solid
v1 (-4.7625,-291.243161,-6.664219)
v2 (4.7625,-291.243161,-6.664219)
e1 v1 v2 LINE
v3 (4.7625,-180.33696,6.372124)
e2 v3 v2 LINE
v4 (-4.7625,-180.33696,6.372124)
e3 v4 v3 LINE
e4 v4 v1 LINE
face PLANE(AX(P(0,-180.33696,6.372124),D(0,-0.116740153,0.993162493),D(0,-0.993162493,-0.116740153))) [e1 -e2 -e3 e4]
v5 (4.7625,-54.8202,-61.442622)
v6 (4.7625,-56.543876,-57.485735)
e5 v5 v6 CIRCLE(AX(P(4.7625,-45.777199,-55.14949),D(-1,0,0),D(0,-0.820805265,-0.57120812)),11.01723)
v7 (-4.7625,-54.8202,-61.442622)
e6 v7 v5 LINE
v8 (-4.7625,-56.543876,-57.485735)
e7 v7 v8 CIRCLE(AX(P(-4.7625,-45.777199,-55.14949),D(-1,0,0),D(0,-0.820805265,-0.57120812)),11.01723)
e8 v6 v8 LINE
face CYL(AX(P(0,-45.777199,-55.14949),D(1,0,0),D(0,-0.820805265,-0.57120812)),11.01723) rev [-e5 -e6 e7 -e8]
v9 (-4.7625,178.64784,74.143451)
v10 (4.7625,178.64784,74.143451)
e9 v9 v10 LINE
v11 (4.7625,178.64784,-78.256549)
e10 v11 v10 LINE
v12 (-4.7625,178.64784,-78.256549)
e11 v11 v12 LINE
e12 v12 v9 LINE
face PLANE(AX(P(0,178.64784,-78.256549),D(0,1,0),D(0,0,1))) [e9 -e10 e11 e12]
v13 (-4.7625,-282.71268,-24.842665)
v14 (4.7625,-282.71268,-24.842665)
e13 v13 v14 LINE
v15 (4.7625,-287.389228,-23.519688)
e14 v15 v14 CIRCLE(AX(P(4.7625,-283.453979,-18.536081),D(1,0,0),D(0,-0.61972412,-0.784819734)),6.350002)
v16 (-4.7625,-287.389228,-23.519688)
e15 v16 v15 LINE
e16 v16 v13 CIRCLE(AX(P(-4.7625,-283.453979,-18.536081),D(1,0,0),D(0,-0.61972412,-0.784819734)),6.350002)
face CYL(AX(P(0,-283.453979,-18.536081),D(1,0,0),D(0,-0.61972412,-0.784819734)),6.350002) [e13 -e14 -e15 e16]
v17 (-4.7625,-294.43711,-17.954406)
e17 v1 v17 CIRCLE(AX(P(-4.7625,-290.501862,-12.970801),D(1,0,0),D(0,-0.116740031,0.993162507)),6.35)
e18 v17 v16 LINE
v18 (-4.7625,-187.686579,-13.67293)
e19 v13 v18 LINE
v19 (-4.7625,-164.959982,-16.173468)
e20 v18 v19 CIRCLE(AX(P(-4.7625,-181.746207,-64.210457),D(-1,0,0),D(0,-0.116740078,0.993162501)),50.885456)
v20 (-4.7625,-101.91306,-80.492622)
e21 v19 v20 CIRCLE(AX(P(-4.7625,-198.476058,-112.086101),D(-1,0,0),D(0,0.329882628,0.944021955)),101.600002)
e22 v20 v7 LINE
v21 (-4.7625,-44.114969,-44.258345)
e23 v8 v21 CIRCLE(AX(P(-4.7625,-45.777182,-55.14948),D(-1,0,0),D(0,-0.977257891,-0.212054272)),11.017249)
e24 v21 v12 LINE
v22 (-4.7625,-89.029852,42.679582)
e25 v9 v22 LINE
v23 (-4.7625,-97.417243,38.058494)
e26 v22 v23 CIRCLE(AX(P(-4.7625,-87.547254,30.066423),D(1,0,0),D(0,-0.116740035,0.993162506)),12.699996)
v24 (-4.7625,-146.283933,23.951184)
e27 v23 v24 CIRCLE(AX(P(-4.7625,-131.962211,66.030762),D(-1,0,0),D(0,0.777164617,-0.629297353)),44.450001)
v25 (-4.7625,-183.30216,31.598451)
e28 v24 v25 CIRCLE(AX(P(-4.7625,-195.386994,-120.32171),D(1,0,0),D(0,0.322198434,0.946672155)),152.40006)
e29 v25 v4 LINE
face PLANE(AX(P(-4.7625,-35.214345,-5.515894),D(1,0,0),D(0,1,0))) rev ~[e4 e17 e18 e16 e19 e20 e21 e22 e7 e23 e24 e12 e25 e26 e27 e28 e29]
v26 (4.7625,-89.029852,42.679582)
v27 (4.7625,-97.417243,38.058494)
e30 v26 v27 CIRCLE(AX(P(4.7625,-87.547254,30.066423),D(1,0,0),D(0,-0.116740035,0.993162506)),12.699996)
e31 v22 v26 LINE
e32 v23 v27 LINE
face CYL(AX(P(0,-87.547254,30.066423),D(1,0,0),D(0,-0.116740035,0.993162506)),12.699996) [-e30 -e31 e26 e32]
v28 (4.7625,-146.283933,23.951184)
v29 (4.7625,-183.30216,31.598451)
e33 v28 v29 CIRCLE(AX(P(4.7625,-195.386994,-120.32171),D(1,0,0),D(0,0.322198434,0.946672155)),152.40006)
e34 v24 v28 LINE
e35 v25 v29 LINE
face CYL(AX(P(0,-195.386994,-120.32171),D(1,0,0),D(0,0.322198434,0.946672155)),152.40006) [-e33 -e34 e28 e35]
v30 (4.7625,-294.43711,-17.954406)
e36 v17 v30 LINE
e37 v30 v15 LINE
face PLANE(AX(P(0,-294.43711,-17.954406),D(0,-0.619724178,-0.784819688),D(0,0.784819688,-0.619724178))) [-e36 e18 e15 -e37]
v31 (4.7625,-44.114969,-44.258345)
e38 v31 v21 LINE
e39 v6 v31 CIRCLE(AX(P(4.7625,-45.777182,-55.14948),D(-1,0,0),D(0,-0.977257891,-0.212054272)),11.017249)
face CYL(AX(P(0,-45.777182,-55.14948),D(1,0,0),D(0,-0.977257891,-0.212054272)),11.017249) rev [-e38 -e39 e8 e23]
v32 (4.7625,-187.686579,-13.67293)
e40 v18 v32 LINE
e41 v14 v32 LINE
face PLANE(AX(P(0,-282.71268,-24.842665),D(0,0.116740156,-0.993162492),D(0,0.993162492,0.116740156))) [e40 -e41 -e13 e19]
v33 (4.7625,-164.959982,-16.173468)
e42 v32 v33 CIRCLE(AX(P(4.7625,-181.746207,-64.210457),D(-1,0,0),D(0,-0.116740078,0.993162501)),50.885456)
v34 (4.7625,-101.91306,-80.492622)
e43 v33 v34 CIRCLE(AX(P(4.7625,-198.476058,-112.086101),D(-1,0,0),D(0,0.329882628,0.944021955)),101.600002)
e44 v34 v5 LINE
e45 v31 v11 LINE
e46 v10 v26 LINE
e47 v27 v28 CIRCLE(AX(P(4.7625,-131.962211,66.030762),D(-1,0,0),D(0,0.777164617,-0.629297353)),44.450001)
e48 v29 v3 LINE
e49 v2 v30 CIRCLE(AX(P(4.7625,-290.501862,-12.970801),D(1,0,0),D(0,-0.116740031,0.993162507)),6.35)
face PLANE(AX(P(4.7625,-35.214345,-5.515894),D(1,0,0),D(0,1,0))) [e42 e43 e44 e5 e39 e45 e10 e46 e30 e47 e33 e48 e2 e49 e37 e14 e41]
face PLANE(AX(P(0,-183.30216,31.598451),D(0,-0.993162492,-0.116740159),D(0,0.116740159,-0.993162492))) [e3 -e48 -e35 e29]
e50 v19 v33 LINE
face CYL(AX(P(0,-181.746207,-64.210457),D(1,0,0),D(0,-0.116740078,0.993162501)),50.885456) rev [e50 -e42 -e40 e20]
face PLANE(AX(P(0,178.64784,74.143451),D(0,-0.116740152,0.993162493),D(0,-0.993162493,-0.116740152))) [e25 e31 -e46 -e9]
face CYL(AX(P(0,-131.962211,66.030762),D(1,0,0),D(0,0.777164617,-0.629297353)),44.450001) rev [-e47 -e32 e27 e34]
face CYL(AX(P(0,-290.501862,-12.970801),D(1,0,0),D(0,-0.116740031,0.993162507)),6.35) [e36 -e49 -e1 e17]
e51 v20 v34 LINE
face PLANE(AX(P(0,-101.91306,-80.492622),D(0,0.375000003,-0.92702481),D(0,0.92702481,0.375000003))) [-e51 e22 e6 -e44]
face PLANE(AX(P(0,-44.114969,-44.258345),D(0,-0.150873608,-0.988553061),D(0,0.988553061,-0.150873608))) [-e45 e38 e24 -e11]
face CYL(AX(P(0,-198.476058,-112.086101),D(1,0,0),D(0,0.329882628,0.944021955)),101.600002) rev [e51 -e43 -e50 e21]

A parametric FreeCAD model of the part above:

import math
import FreeCAD as App
import Part
import Sketcher
Q = App.Units.Quantity

doc = App.newDocument("Part")
params = doc.addObject("Spreadsheet::Sheet", "Params")
for row, (alias, value) in enumerate([
    ("sketch1_radius", "4.0000001 in"),
    ("sketch1_radius2", "0.4999998 in"),
    ("sketch1_height", "6 in"),
    ("sketch1_radius3", "1.75 in"),
    ("sketch1_radius4", "0.25 in"),
    ("pad1_length", "0.375 in"),
], start=1):
    params.set(f"A{row}", alias)
    params.set(f"B{row}", "=" + value)
    params.setAlias(f"B{row}", alias)

body = doc.addObject("PartDesign::Body", "Body")

# Sketch on YZ plane
sketch1 = doc.addObject("Sketcher::SketchObject", "Sketch")
body.addObject(sketch1)
sketch1.AttachmentSupport = (doc.YZ_Plane, [""])
sketch1.MapMode = "FlatFace"
sketch1.addGeometry(Part.LineSegment(App.Vector(178.64784, -78.256549, 0), App.Vector(178.64784, 74.143451, 0)), False)
sketch1.addGeometry(Part.LineSegment(App.Vector(178.64784, 74.143451, 0), App.Vector(-89.029852, 42.679582, 0)), False)
sketch1.addGeometry(Part.ArcOfCircle(Part.Circle(App.Vector(-87.547254, 30.066423, 0), App.Vector(0, 0, 1), 12.699996), math.radians(96.703998), math.radians(141.001711)), False)
sketch1.addGeometry(Part.ArcOfCircle(Part.Circle(App.Vector(-131.962211, 66.030762, 0), App.Vector(0, 0, 1), 44.450001), math.radians(-108.79593), math.radians(-38.998302)), False)
sketch1.addGeometry(Part.ArcOfCircle(Part.Circle(App.Vector(-195.386994, -120.32171, 0), App.Vector(0, 0, 1), 152.40006), math.radians(71.204071), math.radians(85.451854)), False)
sketch1.addGeometry(Part.LineSegment(App.Vector(-183.30216, 31.598451, 0), App.Vector(-180.33696, 6.372124, 0)), False)
sketch1.addGeometry(Part.LineSegment(App.Vector(-180.33696, 6.372124, 0), App.Vector(-291.243161, -6.664219, 0)), False)
sketch1.addGeometry(Part.ArcOfCircle(Part.Circle(App.Vector(-290.501862, -12.970801, 0), App.Vector(0, 0, 1), 6.35), math.radians(96.703998), math.radians(231.704008)), False)
sketch1.addGeometry(Part.LineSegment(App.Vector(-294.43711, -17.954406, 0), App.Vector(-287.389228, -23.519688, 0)), False)
sketch1.addGeometry(Part.ArcOfCircle(Part.Circle(App.Vector(-283.453979, -18.536081, 0), App.Vector(0, 0, 1), 6.350002), math.radians(-128.295991), math.radians(-83.296007)), False)
sketch1.addGeometry(Part.LineSegment(App.Vector(-282.71268, -24.842665, 0), App.Vector(-187.686579, -13.67293, 0)), False)
sketch1.addGeometry(Part.ArcOfCircle(Part.Circle(App.Vector(-181.746207, -64.210457, 0), App.Vector(0, 0, 1), 50.885456), math.radians(70.738352), math.radians(96.704)), False)
sketch1.addGeometry(Part.ArcOfCircle(Part.Circle(App.Vector(-198.476058, -112.086101, 0), App.Vector(0, 0, 1), 101.600002), math.radians(18.11706), math.radians(70.738348)), False)
sketch1.addGeometry(Part.LineSegment(App.Vector(-101.91306, -80.492622, 0), App.Vector(-54.8202, -61.442622, 0)), False)
sketch1.addGeometry(Part.ArcOfCircle(Part.Circle(App.Vector(-45.777199, -55.14949, 0), App.Vector(0, 0, 1), 11.01723), math.radians(-167.757268), math.radians(-145.165485)), False)
sketch1.addGeometry(Part.ArcOfCircle(Part.Circle(App.Vector(-45.777182, -55.14948, 0), App.Vector(0, 0, 1), 11.017249), math.radians(81.322437), math.radians(192.242765)), False)
sketch1.addGeometry(Part.LineSegment(App.Vector(-44.114969, -44.258345, 0), App.Vector(178.64784, -78.256549, 0)), False)
sketch1.addConstraint(Sketcher.Constraint("Coincident", 0, 2, 1, 1))
sketch1.addConstraint(Sketcher.Constraint("Coincident", 1, 2, 2, 1))
sketch1.addConstraint(Sketcher.Constraint("Coincident", 2, 2, 3, 2))
sketch1.addConstraint(Sketcher.Constraint("Coincident", 3, 1, 4, 1))
sketch1.addConstraint(Sketcher.Constraint("Coincident", 4, 2, 5, 1))
sketch1.addConstraint(Sketcher.Constraint("Coincident", 5, 2, 6, 1))
sketch1.addConstraint(Sketcher.Constraint("Coincident", 6, 2, 7, 1))
sketch1.addConstraint(Sketcher.Constraint("Coincident", 7, 2, 8, 1))
sketch1.addConstraint(Sketcher.Constraint("Coincident", 8, 2, 9, 1))
sketch1.addConstraint(Sketcher.Constraint("Coincident", 9, 2, 10, 1))
sketch1.addConstraint(Sketcher.Constraint("Coincident", 10, 2, 11, 2))
sketch1.addConstraint(Sketcher.Constraint("Coincident", 11, 1, 12, 2))
sketch1.addConstraint(Sketcher.Constraint("Coincident", 12, 1, 13, 1))
sketch1.addConstraint(Sketcher.Constraint("Coincident", 13, 2, 14, 2))
sketch1.addConstraint(Sketcher.Constraint("Coincident", 14, 1, 15, 2))
sketch1.addConstraint(Sketcher.Constraint("Coincident", 15, 1, 16, 1))
sketch1.addConstraint(Sketcher.Constraint("Coincident", 16, 2, 0, 1))
sketch1.addConstraint(Sketcher.Constraint("Vertical", 0))
sketch1.addConstraint(Sketcher.Constraint("Radius", 12, Q("4.0000001 in")))
sketch1.addConstraint(Sketcher.Constraint("Radius", 2, Q("0.4999998 in")))
sketch1.addConstraint(Sketcher.Constraint("DistanceY", 0, 1, 0, 2, Q("6 in")))
sketch1.addConstraint(Sketcher.Constraint("Radius", 3, Q("1.75 in")))
sketch1.addConstraint(Sketcher.Constraint("Radius", 7, Q("0.25 in")))
sketch1.addConstraint(Sketcher.Constraint("Radius", 9, Q("0.2500001 in")))
sketch1.addConstraint(Sketcher.Constraint("Distance", 5, Q("1 in")))
sketch1.addConstraint(Sketcher.Constraint("Distance", 13, Q("2 in")))
sketch1.addConstraint(Sketcher.Constraint("DistanceX", 11, 3, 3, 3, Q("1.9599998 in")))
sketch1.addConstraint(Sketcher.Constraint("DistanceY", 12, 1, 13, 2, Q("0.75 in")))
sketch1.addConstraint(Sketcher.Constraint("Radius", 4, 152.40006))
sketch1.addConstraint(Sketcher.Constraint("Radius", 14, 11.01723))
sketch1.addConstraint(Sketcher.Constraint("Radius", 15, 11.017249))
sketch1.addConstraint(Sketcher.Constraint("Radius", 11, 50.885456))
sketch1.addConstraint(Sketcher.Constraint("DistanceY", 11, 3, 6, 2, Q("2.2655999 in")))
sketch1.addConstraint(Sketcher.Constraint("DistanceY", 7, 2, 4, 2, Q("1.9508999 in")))
sketch1.addConstraint(Sketcher.Constraint("DistanceY", 7, 3, -1, 1, 12.970801))
sketch1.addConstraint(Sketcher.Constraint("DistanceY", 12, 3, -1, 1, 112.086101))
sketch1.addConstraint(Sketcher.Constraint("DistanceX", 14, 3, -1, 1, 45.777199))
sketch1.addConstraint(Sketcher.Constraint("DistanceX", 13, 2, -1, 1, 54.8202))
sketch1.addConstraint(Sketcher.Constraint("DistanceY", 3, 1, 1, 2, 18.728398))
sketch1.addConstraint(Sketcher.Constraint("DistanceX", 4, 2, 5, 2, 2.9652))
sketch1.addConstraint(Sketcher.Constraint("DistanceX", 6, 2, 7, 3, 0.741299))
sketch1.addConstraint(Sketcher.Constraint("DistanceX", 6, 2, 5, 2, 110.906201))
sketch1.addConstraint(Sketcher.Constraint("DistanceX", 9, 3, 9, 2, 0.741299))
sketch1.addConstraint(Sketcher.Constraint("DistanceX", 9, 2, 10, 2, 95.026101))
sketch1.addConstraint(Sketcher.Constraint("Distance", 1, 269.520541))
sketch1.addConstraint(Sketcher.Constraint("Distance", 16, 225.342288))
sketch1.addConstraint(Sketcher.Constraint("DistanceX", 3, 3, -1, 1, 131.962211))
sketch1.addConstraint(Sketcher.Constraint("DistanceY", 4, 3, -1, 1, 120.32171))
sketch1.addConstraint(Sketcher.Constraint("DistanceX", 7, 3, -1, 1, 290.501862))
sketch1.addConstraint(Sketcher.Constraint("DistanceX", 9, 3, -1, 1, 283.453979))
sketch1.addConstraint(Sketcher.Constraint("DistanceY", 9, 3, -1, 1, 18.536081))
sketch1.addConstraint(Sketcher.Constraint("DistanceY", 15, 3, -1, 1, 55.14948))
sketch1.addConstraint(Sketcher.Constraint("DistanceX", -1, 1, 0, 2, 178.64784))
sketch1.addConstraint(Sketcher.Constraint("DistanceY", -1, 1, 0, 2, 74.143451))
sketch1.addConstraint(Sketcher.Constraint("DistanceY", -1, 1, 4, 2, 31.598451))
sketch1.addConstraint(Sketcher.Constraint("DistanceX", 8, 2, -1, 1, 287.389228))
sketch1.addConstraint(Sketcher.Constraint("DistanceX", 11, 1, -1, 1, 164.959982))
sketch1.addConstraint(Sketcher.Constraint("DistanceY", 2, 3, 3, 3, 35.96434))
sketch1.addConstraint(Sketcher.Constraint("DistanceX", 2, 2, 1, 2, 8.387391))
sketch1.addConstraint(Sketcher.Constraint("DistanceX", 2, 3, 14, 1, 31.003378))
sketch1.setExpression("Constraints[18]", "Params.sketch1_radius")
sketch1.setExpression("Constraints[19]", "Params.sketch1_radius2")
sketch1.setExpression("Constraints[20]", "Params.sketch1_height")
sketch1.setExpression("Constraints[21]", "Params.sketch1_radius3")
sketch1.setExpression("Constraints[22]", "Params.sketch1_radius4")
pad1 = doc.addObject("PartDesign::Pad", "Pad")
body.addObject(pad1)
pad1.Profile = sketch1
pad1.setExpression("Length", "Params.pad1_length")
pad1.Midplane = True

doc.recompute()
